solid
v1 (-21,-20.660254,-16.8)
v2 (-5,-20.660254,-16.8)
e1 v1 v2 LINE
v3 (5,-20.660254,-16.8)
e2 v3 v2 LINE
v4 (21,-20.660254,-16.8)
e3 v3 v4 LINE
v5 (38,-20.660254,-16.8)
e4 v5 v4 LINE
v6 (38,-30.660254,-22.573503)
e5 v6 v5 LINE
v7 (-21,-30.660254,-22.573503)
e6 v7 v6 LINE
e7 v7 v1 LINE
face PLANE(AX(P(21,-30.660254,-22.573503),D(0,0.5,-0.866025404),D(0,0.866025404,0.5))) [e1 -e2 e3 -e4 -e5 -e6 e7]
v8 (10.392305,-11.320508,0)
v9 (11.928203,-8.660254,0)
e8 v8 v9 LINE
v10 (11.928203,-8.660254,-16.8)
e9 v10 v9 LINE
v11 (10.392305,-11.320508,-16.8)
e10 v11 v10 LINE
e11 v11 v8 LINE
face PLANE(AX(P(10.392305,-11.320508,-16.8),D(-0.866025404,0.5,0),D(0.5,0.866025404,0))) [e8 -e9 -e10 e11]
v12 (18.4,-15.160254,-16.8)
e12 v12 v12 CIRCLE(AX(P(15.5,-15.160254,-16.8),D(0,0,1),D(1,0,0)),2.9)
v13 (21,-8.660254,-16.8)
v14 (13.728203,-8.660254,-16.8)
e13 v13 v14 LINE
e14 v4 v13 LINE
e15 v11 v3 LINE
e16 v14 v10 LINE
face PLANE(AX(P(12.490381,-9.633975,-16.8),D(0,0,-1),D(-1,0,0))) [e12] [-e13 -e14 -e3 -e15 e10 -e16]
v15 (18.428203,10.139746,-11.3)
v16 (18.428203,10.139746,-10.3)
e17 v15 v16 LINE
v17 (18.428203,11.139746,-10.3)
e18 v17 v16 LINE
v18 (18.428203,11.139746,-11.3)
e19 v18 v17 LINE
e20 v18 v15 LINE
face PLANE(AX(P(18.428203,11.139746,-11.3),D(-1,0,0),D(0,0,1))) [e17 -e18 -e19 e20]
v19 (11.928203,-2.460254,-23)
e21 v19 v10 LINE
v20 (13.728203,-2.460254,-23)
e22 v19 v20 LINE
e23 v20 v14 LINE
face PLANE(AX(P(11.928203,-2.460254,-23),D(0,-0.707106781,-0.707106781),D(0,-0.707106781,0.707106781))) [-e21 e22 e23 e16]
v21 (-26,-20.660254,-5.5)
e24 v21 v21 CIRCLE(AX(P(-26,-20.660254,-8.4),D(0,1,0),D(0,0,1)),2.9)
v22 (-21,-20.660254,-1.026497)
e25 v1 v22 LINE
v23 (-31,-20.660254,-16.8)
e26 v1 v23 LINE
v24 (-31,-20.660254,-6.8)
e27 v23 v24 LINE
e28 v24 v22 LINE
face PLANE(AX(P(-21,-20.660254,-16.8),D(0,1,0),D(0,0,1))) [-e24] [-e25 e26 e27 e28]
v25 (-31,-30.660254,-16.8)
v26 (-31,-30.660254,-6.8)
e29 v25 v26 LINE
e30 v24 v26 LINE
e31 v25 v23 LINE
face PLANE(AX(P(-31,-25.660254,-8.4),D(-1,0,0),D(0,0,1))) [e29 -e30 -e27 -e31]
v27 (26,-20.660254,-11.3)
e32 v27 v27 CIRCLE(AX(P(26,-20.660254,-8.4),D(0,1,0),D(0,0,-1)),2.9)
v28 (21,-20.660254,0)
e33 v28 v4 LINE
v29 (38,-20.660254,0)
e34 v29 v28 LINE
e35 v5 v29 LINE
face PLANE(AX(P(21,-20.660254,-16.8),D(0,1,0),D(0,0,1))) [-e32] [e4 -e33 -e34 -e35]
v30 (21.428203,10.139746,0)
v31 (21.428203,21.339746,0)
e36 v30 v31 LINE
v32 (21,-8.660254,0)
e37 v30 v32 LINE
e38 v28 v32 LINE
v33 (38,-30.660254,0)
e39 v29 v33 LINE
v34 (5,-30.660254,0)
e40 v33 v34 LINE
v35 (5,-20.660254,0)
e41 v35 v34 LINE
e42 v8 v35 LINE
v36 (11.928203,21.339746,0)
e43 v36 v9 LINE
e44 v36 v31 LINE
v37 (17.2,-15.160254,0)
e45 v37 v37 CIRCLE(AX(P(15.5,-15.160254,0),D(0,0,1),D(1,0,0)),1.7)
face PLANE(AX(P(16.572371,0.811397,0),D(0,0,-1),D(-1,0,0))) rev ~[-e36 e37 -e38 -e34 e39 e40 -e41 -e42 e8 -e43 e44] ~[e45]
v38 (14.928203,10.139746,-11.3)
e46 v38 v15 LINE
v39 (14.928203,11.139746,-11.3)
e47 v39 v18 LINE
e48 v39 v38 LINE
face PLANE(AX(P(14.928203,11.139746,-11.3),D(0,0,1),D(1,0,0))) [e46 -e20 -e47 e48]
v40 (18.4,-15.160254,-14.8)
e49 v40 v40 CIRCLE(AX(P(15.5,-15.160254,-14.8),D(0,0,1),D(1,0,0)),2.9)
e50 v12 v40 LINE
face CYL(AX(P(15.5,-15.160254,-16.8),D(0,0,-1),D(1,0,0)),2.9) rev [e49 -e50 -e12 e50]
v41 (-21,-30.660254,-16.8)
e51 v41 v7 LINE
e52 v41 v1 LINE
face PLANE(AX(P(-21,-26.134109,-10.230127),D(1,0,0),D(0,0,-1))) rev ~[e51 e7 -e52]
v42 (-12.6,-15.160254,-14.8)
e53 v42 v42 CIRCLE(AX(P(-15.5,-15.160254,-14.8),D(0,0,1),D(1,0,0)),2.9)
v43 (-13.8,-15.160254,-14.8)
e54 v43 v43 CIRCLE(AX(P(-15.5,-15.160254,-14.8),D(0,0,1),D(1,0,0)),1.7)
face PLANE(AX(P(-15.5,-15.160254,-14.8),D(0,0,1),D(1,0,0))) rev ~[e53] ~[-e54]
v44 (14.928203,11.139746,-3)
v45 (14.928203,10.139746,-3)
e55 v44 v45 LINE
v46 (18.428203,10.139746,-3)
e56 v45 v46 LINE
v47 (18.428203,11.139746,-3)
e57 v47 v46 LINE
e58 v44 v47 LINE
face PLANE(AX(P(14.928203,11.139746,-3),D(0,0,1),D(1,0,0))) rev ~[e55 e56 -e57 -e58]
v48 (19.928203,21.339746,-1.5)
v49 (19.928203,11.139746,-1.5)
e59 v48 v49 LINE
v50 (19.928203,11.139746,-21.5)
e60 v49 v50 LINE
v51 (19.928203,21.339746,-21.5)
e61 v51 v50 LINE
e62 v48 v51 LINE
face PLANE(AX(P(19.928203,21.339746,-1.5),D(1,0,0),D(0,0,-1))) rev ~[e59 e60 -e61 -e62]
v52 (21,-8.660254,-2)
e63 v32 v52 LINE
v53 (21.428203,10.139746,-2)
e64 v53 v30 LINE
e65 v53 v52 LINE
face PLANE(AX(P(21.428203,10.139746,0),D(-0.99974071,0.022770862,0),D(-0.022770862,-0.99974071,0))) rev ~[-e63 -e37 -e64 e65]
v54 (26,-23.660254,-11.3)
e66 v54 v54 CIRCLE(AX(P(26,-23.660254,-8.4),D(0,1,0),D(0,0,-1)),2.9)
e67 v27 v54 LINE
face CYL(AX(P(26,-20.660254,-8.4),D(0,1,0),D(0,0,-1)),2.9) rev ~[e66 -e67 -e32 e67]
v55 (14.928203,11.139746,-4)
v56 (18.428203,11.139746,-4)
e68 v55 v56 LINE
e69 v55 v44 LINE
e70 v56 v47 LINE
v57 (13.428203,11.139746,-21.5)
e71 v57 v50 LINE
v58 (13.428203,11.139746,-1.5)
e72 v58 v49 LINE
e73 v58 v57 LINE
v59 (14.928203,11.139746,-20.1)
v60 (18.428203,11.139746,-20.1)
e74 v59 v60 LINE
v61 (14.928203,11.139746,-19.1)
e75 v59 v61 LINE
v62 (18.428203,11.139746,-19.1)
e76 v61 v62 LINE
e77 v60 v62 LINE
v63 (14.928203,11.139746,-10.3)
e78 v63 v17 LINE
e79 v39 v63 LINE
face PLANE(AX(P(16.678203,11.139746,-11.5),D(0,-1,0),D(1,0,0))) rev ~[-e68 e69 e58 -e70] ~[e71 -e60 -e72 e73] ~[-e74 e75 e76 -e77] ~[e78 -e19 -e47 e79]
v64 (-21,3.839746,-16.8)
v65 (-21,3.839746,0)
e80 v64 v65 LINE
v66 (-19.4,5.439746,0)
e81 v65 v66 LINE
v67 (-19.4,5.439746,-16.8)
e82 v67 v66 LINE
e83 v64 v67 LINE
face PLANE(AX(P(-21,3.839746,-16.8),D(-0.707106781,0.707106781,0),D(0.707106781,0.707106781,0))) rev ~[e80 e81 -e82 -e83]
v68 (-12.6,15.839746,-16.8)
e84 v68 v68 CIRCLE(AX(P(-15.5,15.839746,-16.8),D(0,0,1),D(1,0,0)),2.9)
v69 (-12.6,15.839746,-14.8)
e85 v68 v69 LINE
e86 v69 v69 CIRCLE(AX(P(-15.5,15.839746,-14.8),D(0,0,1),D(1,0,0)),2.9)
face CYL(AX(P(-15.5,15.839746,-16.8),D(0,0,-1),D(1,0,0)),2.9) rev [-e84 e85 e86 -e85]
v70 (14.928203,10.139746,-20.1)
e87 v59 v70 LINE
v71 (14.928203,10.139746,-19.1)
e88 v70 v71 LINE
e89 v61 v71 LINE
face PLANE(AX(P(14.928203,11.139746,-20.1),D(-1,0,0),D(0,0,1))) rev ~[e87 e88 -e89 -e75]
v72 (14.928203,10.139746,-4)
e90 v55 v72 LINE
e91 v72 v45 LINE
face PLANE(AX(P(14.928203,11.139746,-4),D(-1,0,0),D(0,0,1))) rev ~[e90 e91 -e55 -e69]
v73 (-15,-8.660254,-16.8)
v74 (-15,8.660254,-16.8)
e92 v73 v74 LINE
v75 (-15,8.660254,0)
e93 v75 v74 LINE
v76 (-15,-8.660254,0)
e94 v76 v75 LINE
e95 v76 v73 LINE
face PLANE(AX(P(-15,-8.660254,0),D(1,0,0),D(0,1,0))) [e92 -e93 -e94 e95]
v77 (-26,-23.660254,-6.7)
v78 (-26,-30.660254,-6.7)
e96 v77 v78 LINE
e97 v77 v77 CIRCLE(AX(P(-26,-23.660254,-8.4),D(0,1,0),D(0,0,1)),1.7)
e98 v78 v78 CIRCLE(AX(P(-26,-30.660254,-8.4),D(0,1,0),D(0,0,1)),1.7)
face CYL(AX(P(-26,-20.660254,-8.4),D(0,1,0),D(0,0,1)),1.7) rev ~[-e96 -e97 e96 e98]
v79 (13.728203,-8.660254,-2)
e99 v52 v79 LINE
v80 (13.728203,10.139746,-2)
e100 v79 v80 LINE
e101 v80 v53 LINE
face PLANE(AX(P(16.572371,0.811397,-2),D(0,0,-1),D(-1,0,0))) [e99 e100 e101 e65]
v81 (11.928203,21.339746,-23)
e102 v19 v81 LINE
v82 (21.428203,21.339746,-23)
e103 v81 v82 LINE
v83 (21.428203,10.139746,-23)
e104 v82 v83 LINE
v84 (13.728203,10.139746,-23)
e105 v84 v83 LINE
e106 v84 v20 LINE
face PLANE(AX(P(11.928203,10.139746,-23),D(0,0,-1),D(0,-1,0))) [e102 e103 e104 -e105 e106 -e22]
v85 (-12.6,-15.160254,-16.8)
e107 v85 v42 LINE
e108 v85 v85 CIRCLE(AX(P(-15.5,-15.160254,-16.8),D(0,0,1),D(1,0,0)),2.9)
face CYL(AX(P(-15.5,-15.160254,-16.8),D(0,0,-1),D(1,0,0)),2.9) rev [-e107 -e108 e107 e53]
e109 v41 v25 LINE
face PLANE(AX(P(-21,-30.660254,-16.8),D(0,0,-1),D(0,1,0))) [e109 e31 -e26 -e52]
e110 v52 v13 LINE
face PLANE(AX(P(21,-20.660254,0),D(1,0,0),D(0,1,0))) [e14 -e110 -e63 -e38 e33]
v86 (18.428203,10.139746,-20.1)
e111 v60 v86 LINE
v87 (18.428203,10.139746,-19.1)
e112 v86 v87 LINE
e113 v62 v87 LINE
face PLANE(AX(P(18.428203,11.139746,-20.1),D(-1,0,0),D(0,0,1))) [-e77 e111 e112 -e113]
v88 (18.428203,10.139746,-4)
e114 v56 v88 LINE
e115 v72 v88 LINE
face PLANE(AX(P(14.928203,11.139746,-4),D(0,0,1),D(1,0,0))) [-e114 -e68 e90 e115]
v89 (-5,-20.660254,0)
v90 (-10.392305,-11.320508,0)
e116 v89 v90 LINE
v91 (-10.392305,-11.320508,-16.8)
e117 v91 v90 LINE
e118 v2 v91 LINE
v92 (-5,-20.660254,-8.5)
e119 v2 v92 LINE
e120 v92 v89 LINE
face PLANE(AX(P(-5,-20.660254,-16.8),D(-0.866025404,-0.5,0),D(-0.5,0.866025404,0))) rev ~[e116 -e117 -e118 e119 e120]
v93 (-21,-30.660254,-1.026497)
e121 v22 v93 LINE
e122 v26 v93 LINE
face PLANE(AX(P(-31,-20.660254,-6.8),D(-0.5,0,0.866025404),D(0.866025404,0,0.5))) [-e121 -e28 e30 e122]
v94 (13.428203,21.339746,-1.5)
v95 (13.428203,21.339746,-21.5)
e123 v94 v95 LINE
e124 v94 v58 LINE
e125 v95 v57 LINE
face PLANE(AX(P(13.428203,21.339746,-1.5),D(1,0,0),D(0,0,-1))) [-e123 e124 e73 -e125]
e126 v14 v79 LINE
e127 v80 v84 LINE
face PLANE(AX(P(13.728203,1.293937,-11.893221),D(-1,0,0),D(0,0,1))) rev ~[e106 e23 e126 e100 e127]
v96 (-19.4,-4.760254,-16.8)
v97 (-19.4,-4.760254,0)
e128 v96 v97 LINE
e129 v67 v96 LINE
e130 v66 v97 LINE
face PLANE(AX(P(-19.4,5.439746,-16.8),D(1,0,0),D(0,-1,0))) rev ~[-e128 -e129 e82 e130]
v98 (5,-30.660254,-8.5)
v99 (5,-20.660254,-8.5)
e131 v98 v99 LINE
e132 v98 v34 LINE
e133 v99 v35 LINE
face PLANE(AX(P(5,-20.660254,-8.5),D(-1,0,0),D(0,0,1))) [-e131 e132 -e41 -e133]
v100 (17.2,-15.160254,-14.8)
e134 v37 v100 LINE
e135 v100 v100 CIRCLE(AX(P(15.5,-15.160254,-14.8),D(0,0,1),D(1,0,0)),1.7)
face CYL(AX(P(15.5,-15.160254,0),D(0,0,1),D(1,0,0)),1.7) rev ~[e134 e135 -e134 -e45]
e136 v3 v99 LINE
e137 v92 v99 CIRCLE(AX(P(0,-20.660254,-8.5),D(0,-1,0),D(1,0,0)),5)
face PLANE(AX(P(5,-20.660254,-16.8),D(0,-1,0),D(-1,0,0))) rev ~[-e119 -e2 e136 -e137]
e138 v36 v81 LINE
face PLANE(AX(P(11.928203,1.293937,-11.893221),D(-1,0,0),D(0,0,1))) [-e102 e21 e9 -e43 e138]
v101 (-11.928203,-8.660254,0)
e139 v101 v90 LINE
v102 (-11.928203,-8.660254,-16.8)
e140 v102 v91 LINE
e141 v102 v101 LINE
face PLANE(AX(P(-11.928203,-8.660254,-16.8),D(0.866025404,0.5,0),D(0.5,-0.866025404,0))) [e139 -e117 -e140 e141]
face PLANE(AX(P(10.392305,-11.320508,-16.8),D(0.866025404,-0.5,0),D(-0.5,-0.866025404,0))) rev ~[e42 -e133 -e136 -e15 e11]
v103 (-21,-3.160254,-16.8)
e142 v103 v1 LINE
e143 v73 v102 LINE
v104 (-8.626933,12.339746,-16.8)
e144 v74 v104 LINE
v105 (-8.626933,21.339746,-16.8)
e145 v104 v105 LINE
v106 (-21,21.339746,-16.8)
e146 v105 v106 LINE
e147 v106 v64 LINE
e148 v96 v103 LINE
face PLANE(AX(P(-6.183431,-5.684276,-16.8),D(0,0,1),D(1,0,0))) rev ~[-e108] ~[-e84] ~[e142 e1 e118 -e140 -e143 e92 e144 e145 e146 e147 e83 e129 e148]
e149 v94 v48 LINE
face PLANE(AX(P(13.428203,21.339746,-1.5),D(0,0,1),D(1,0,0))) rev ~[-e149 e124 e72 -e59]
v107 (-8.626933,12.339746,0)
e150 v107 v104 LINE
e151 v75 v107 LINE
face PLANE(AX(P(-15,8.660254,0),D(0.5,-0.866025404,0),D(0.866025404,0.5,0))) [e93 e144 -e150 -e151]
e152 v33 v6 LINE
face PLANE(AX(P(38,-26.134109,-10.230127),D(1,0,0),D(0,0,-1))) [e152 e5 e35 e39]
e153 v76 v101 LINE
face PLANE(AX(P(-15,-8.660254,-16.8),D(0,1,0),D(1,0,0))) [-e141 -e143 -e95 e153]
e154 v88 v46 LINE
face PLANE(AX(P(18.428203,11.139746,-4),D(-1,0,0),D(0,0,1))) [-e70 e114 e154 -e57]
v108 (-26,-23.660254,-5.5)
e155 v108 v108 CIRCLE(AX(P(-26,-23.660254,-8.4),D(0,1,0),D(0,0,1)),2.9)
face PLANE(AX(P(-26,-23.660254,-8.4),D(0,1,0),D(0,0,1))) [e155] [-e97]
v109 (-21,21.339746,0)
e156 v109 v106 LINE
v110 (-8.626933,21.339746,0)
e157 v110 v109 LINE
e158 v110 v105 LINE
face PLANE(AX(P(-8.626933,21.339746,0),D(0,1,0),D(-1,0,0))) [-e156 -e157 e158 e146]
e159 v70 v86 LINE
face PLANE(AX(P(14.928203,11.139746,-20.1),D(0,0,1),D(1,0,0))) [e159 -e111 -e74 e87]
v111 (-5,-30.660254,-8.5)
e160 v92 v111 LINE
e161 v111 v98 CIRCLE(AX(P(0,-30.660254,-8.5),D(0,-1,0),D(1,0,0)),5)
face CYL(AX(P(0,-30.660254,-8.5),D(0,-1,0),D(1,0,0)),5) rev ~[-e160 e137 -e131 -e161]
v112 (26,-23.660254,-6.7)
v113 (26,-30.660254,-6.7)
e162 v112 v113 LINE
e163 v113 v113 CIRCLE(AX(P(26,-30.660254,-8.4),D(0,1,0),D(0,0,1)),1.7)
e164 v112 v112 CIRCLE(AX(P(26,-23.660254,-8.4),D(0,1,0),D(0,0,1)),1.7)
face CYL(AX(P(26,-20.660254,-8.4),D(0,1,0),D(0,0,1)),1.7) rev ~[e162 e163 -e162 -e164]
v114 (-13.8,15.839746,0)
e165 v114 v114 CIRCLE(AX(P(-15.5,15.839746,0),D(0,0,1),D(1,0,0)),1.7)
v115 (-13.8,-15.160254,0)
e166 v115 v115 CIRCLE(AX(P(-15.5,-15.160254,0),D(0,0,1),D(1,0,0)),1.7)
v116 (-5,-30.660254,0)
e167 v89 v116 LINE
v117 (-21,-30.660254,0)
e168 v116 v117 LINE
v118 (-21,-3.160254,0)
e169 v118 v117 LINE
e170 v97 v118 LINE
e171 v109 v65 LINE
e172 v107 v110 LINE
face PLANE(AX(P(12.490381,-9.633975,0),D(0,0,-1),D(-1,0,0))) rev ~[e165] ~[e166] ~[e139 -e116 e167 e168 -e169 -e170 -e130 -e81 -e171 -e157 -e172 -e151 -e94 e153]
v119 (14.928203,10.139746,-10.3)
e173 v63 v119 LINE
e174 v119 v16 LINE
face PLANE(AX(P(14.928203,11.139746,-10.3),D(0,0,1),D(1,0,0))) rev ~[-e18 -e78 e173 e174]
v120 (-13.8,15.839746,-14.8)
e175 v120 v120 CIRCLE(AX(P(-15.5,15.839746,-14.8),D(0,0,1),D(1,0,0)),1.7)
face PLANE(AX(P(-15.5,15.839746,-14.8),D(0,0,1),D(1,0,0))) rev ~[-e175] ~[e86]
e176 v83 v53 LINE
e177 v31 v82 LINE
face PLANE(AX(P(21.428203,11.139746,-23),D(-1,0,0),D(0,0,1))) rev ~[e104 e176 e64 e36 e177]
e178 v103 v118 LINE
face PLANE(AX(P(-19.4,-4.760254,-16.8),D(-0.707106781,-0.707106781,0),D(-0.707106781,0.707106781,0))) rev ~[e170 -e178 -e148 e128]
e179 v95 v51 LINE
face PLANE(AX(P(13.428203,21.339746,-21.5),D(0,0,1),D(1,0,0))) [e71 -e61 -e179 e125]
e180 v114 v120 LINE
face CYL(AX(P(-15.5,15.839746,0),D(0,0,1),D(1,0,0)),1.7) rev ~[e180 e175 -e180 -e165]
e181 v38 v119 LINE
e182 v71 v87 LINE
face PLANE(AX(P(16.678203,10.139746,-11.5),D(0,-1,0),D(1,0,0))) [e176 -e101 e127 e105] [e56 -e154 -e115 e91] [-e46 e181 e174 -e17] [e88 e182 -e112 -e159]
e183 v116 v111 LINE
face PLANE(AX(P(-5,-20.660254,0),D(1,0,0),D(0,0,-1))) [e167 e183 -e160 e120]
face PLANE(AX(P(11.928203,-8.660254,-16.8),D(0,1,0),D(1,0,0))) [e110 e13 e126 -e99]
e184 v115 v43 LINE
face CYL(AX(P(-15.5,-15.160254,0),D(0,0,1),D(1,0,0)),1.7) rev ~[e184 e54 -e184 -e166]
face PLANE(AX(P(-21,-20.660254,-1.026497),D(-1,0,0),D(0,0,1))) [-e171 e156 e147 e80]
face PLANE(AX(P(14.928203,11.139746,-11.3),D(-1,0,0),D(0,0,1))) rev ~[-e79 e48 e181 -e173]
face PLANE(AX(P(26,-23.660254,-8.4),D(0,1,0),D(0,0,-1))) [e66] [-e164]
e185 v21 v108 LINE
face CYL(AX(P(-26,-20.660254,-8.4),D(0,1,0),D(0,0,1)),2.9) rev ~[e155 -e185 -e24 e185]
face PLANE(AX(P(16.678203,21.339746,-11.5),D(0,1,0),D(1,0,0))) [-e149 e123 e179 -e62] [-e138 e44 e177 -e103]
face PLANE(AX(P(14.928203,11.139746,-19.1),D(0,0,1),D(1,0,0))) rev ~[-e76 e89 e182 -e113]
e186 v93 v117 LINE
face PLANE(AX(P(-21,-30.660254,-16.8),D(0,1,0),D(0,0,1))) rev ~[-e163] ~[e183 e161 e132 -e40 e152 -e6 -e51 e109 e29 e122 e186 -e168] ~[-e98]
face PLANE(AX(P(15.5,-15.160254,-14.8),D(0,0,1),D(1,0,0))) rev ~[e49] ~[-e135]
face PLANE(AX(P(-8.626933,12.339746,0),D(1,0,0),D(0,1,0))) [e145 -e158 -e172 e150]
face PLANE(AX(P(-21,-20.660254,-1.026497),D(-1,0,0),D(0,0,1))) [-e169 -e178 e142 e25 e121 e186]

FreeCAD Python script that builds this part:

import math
import FreeCAD as App
import Part
import Sketcher
Q = App.Units.Quantity


def add_polygon(sketch, points):
    """Adds a closed chain of lines whose ends are joined by coincident constraints."""
    first, n = sketch.GeometryCount, len(points)
    for a, b in zip(points, points[1:] + points[:1]):
        sketch.addGeometry(Part.LineSegment(App.Vector(*a, 0), App.Vector(*b, 0)), False)
    for i in range(n):
        sketch.addConstraint(Sketcher.Constraint("Coincident", first + i, 2, first + (i + 1) % n, 1))

doc = App.newDocument("Part")
body = doc.addObject("PartDesign::Body", "Body")

sketch1 = doc.addObject("Sketcher::SketchObject", "Sketch")
body.addObject(sketch1)
sketch1.AttachmentSupport = (doc.XY_Plane, [""])
sketch1.MapMode = "FlatFace"
add_polygon(sketch1, [(-21, 21.3), (-21, -20.7), (21, -20.7), (21, -8.7), (15, -8.7), (0, -17.3), (-15, -8.7), (-15, 8.7), (-8.6, 12.3), (-8.6, 21.3)])
sketch1.addGeometry(Part.Circle(App.Vector(-15.5, -15.2, 0), App.Vector(0, 0, 1), 1.7), False)
sketch1.addGeometry(Part.Circle(App.Vector(15.5, -15.2, 0), App.Vector(0, 0, 1), 1.7), False)
sketch1.addGeometry(Part.Circle(App.Vector(-15.5, 15.8, 0), App.Vector(0, 0, 1), 1.7), False)
sketch1.addConstraint([
    Sketcher.Constraint("Vertical", 0),
    Sketcher.Constraint("Horizontal", 1),
    Sketcher.Constraint("Vertical", 2),
    Sketcher.Constraint("Horizontal", 3),
    Sketcher.Constraint("Vertical", 6),
    Sketcher.Constraint("Vertical", 8),
    Sketcher.Constraint("Horizontal", 9),
    Sketcher.Constraint("Equal", 10, 11),
    Sketcher.Constraint("Equal", 11, 12),
    Sketcher.Constraint("Symmetric", 3, 2, 6, 2, -1, 1),
    Sketcher.Constraint("Symmetric", 10, 3, 11, 3, -2),
    Sketcher.Constraint("PointOnObject", 4, 2, -2),
    Sketcher.Constraint("Parallel", 4, 7),
    Sketcher.Constraint("Horizontal", 3, 2, 5, 2),
    Sketcher.Constraint("Vertical", 10, 3, 12, 3),
    Sketcher.Constraint("Equal", 1, 0),
    Sketcher.Constraint("Diameter", 10, Q("3.4 mm")),
    Sketcher.Constraint("DistanceX", 1, 1, 1, 2, Q("42 mm")),
    Sketcher.Constraint("DistanceX", 3, 2, 3, 1, Q("6 mm")),
    Sketcher.Constraint("DistanceY", 2, 1, 2, 2, Q("12 mm")),
    Sketcher.Constraint("DistanceY", 8, 1, 8, 2, Q("9 mm")),
    Sketcher.Constraint("Angle", 4, Q("-150 deg")),
    Sketcher.Constraint("DistanceX", 0, 2, -1, 1, Q("21 mm")),
    Sketcher.Constraint("DistanceX", 10, 3, 11, 3, Q("31 mm")),
    Sketcher.Constraint("DistanceY", 10, 3, 12, 3, Q("31 mm")),
    Sketcher.Constraint("DistanceY", 0, 2, 10, 3, Q("5.5 mm")),
    Sketcher.Constraint("DistanceY", 6, 1, 6, 2, Q("17.320508 mm")),
])
pad1 = doc.addObject("PartDesign::Pad", "Pad")
body.addObject(pad1)
pad1.Profile = sketch1
pad1.Length = 16.8
pad1.Reversed = True
body2 = doc.addObject("PartDesign::Body", "Body001")

sketch2 = doc.addObject("Sketcher::SketchObject", "Sketch001")
body2.addObject(sketch2)
sketch2.AttachmentSupport = (doc.getObject("YZ_Plane001"), [""])
sketch2.MapMode = "FlatFace"
sketch2.AttachmentOffset = App.Placement(App.Vector(0, 0, 21), App.Rotation())
add_polygon(sketch2, [(-21, 0), (-31, 0), (-31, -23), (-21, -17)])
sketch2.addConstraint([
    Sketcher.Constraint("Horizontal", 0),
    Sketcher.Constraint("Vertical", 1),
    Sketcher.Constraint("Vertical", 3),
    Sketcher.Constraint("PointOnObject", 0, 2, -1),
    Sketcher.Constraint("DistanceX", 0, 2, 0, 1, Q("10 mm")),
    Sketcher.Constraint("Angle", 2, Q("30 deg")),
    Sketcher.Constraint("DistanceY", 3, 1, 3, 2, Q("16.8 mm")),
    Sketcher.Constraint("DistanceX", 0, 2, -1, 1, Q("30.660254 mm")),
])
pad2 = doc.addObject("PartDesign::Pad", "Pad001")
body2.addObject(pad2)
pad2.Profile = sketch2
pad2.Type = "TwoLengths"
pad2.Length = 17
pad2.Length2 = 42
doc.recompute()

boolean = doc.addObject("PartDesign::Boolean", "Boolean")
body.addObject(boolean)
boolean.Type = "Fuse"
boolean.addObjects([body2])

sketch3 = doc.addObject("Sketcher::SketchObject", "Sketch002")
body.addObject(sketch3)
sketch3.AttachmentSupport = (doc.YZ_Plane, [""])
sketch3.MapMode = "FlatFace"
sketch3.AttachmentOffset = App.Placement(App.Vector(0, 0, -21), App.Rotation())
add_polygon(sketch3, [(-21, -17), (-31, -17), (-31, 0), (-21, 0)])
sketch3.addConstraint([
    Sketcher.Constraint("Horizontal", 0),
    Sketcher.Constraint("Vertical", 1),
    Sketcher.Constraint("Horizontal", 2),
    Sketcher.Constraint("Vertical", 3),
    Sketcher.Constraint("PointOnObject", 1, 2, -1),
    Sketcher.Constraint("DistanceX", 0, 2, 0, 1, Q("10 mm")),
    Sketcher.Constraint("DistanceY", 1, 1, 1, 2, Q("16.8 mm")),
    Sketcher.Constraint("DistanceX", 0, 2, -1, 1, Q("30.660254 mm")),
])
pad3 = doc.addObject("PartDesign::Pad", "Pad002")
body.addObject(pad3)
pad3.Profile = sketch3
pad3.Length = 10
pad3.Reversed = True

sketch4 = doc.addObject("Sketcher::SketchObject", "Sketch003")
body.addObject(sketch4)
sketch4.AttachmentSupport = (doc.XZ_Plane, [""])
sketch4.MapMode = "FlatFace"
sketch4.AttachmentOffset = App.Placement(App.Vector(0, 0, 20.660254), App.Rotation())
sketch4.addGeometry([
    Part.Circle(App.Vector(-26, -8.4, 0), App.Vector(0, 0, 1), 1.7),
    Part.Circle(App.Vector(26, -8.4, 0), App.Vector(0, 0, 1), 1.7),
], False)
sketch4.addConstraint([
    Sketcher.Constraint("Equal", 0, 1),
    Sketcher.Constraint("Symmetric", 0, 3, 1, 3, -2),
    Sketcher.Constraint("Diameter", 0, Q("3.4 mm")),
    Sketcher.Constraint("DistanceX", 0, 3, -1, 1, Q("26 mm")),
    Sketcher.Constraint("DistanceY", 0, 3, -1, 1, Q("8.4 mm")),
])
pocket1 = doc.addObject("PartDesign::Pocket", "Pocket")
body.addObject(pocket1)
pocket1.Profile = sketch4
pocket1.Type = "ThroughAll"
pocket1.Reversed = True

sketch5 = doc.addObject("Sketcher::SketchObject", "Sketch004")
body.addObject(sketch5)
sketch5.AttachmentSupport = (doc.XZ_Plane, [""])
sketch5.MapMode = "FlatFace"
sketch5.AttachmentOffset = App.Placement(App.Vector(0, 0, 20.660254), App.Rotation())
sketch5.addGeometry([
    Part.Circle(App.Vector(-26, -8.4, 0), App.Vector(0, 0, 1), 2.9),
    Part.Circle(App.Vector(-26, -8.4, 0), App.Vector(0, 0, 1), 1.7),
    Part.Circle(App.Vector(26, -8.4, 0), App.Vector(0, 0, 1), 2.9),
    Part.Circle(App.Vector(26, -8.4, 0), App.Vector(0, 0, 1), 1.7),
], False)
sketch5.addConstraint([
    Sketcher.Constraint("Coincident", 1, 3, 0, 3),
    Sketcher.Constraint("Coincident", 3, 3, 2, 3),
    Sketcher.Constraint("Equal", 0, 2),
    Sketcher.Constraint("Equal", 1, 3),
    Sketcher.Constraint("Symmetric", 0, 3, 2, 3, -2),
    Sketcher.Constraint("Diameter", 0, Q("5.8 mm")),
    Sketcher.Constraint("Diameter", 1, Q("3.4 mm")),
    Sketcher.Constraint("DistanceX", 0, 3, -1, 1, Q("26 mm")),
    Sketcher.Constraint("DistanceY", 0, 3, -1, 1, Q("8.4 mm")),
])
pocket2 = doc.addObject("PartDesign::Pocket", "Pocket001")
body.addObject(pocket2)
pocket2.Profile = sketch5
pocket2.Length = 3
pocket2.Reversed = True

sketch6 = doc.addObject("Sketcher::SketchObject", "Sketch005")
body.addObject(sketch6)
sketch6.AttachmentSupport = (doc.XY_Plane, [""])
sketch6.MapMode = "FlatFace"
sketch6.AttachmentOffset = App.Placement(App.Vector(0, 0, -16.8), App.Rotation())
sketch6.addGeometry([
    Part.Circle(App.Vector(-15.5, 15.8, 0), App.Vector(0, 0, 1), 2.9),
    Part.Circle(App.Vector(-15.5, -15.2, 0), App.Vector(0, 0, 1), 2.9),
    Part.Circle(App.Vector(15.5, -15.2, 0), App.Vector(0, 0, 1), 2.9),
], False)
sketch6.addConstraint([
    Sketcher.Constraint("Equal", 0, 1),
    Sketcher.Constraint("Equal", 1, 2),
    Sketcher.Constraint("Symmetric", 1, 3, 2, 3, -2),
    Sketcher.Constraint("Vertical", 0, 3, 1, 3),
    Sketcher.Constraint("Diameter", 0, Q("5.8 mm")),
    Sketcher.Constraint("DistanceY", 1, 3, 0, 3, Q("31 mm")),
    Sketcher.Constraint("DistanceX", 1, 3, 2, 3, Q("31 mm")),
    Sketcher.Constraint("DistanceY", -1, 1, 0, 3, Q("15.839746 mm")),
])
pocket3 = doc.addObject("PartDesign::Pocket", "Pocket002")
body.addObject(pocket3)
pocket3.Profile = sketch6
pocket3.Length = 2
pocket3.Reversed = True

sketch7 = doc.addObject("Sketcher::SketchObject", "Sketch006")
body.addObject(sketch7)
sketch7.AttachmentSupport = (doc.XZ_Plane, [""])
sketch7.MapMode = "FlatFace"
sketch7.AttachmentOffset = App.Placement(App.Vector(0, 0, 20.660254), App.Rotation())
add_polygon(sketch7, [(-31, -6.8), (-31, 0), (-21, 0), (-21, -1)])
sketch7.addConstraint([
    Sketcher.Constraint("Vertical", 0),
    Sketcher.Constraint("Horizontal", 1),
    Sketcher.Constraint("Vertical", 2),
    Sketcher.Constraint("PointOnObject", 0, 2, -1),
    Sketcher.Constraint("DistanceX", 1, 1, 1, 2, Q("10 mm")),
    Sketcher.Constraint("Angle", 3, Q("-150 deg")),
    Sketcher.Constraint("DistanceY", 0, 1, 0, 2, Q("6.8 mm")),
    Sketcher.Constraint("DistanceX", 0, 2, -1, 1, Q("31 mm")),
])
pocket4 = doc.addObject("PartDesign::Pocket", "Pocket003")
body.addObject(pocket4)
pocket4.Profile = sketch7
pocket4.Type = "ThroughAll"
pocket4.Reversed = True

sketch8 = doc.addObject("Sketcher::SketchObject", "Sketch007")
body.addObject(sketch8)
sketch8.AttachmentSupport = (doc.XZ_Plane, [""])
sketch8.MapMode = "FlatFace"
sketch8.AttachmentOffset = App.Placement(App.Vector(0, 0, 30.660254), App.Rotation())
sketch8.addGeometry(Part.Circle(App.Vector(0, -8, 0), App.Vector(0, 0, 1), 5), False)
sketch8.addConstraint([
    Sketcher.Constraint("PointOnObject", 0, 3, -2),
    Sketcher.Constraint("Diameter", 0, Q("10 mm")),
    Sketcher.Constraint("DistanceY", 0, 3, -1, 1, Q("8.5 mm")),
])
pocket5 = doc.addObject("PartDesign::Pocket", "Pocket004")
body.addObject(pocket5)
pocket5.Profile = sketch8
pocket5.Type = "ThroughAll"

sketch9 = doc.addObject("Sketcher::SketchObject", "Sketch008")
body.addObject(sketch9)
sketch9.AttachmentSupport = (doc.XY_Plane, [""])
sketch9.MapMode = "FlatFace"
sketch9.AttachmentOffset = App.Placement(App.Vector(0, 0, -16.8), App.Rotation())
add_polygon(sketch9, [(5, -21), (-5, -21), (-10, -11), (0, -17), (10, -11)])
sketch9.addConstraint([
    Sketcher.Constraint("Horizontal", 0),
    Sketcher.Constraint("Symmetric", 1, 2, 3, 2, -2),
    Sketcher.Constraint("PointOnObject", 2, 2, -2),
    Sketcher.Constraint("Perpendicular", 1, 3),
    Sketcher.Constraint("Perpendicular", 2, 4),
    Sketcher.Constraint("DistanceX", 0, 2, 0, 1, Q("10 mm")),
    Sketcher.Constraint("Angle", 1, Q("120 deg")),
    Sketcher.Constraint("Distance", 2, Q("12 mm")),
    Sketcher.Constraint("DistanceY", 1, 2, -1, 1, Q("11.320508 mm")),
])
pocket6 = doc.addObject("PartDesign::Pocket", "Pocket005")
body.addObject(pocket6)
pocket6.Profile = sketch9
pocket6.Type = "ThroughAll"
pocket6.Reversed = True

sketch10 = doc.addObject("Sketcher::SketchObject", "Sketch009")
body.addObject(sketch10)
sketch10.AttachmentSupport = (doc.XY_Plane, [""])
sketch10.MapMode = "FlatFace"
sketch10.AttachmentOffset = App.Placement(App.Vector(0, 0, -16.8), App.Rotation())
add_polygon(sketch10, [(15, -8.7), (10.4, -11.3), (11.9, -8.7)])
add_polygon(sketch10, [(-11.9, -8.7), (-10.4, -11.3), (-15, -8.7)])
sketch10.addConstraint([
    Sketcher.Constraint("Horizontal", 2),
    Sketcher.Constraint("Horizontal", 5),
    Sketcher.Constraint("Symmetric", 0, 2, 3, 2, -2),
    Sketcher.Constraint("Symmetric", 2, 2, 4, 2, -2),
    Sketcher.Constraint("Perpendicular", 0, 3),
    Sketcher.Constraint("Perpendicular", 1, 4),
    Sketcher.Constraint("Angle", 0, Q("-150 deg")),
    Sketcher.Constraint("DistanceX", -1, 1, 2, 2, Q("15 mm")),
    Sketcher.Constraint("DistanceX", 0, 2, 1, 2, Q("1.535898 mm")),
    Sketcher.Constraint("DistanceY", 0, 2, -1, 1, Q("11.320508 mm")),
])
pad4 = doc.addObject("PartDesign::Pad", "Pad003")
body.addObject(pad4)
pad4.Profile = sketch10
pad4.Length = 16.8

sketch11 = doc.addObject("Sketcher::SketchObject", "Sketch010")
body.addObject(sketch11)
sketch11.AttachmentSupport = (doc.XZ_Plane, [""])
sketch11.MapMode = "FlatFace"
sketch11.AttachmentOffset = App.Placement(App.Vector(0, 0, 20.660254), App.Rotation())
sketch11.addGeometry([
    Part.LineSegment(App.Vector(-5, 0, 0), App.Vector(5, 0, 0)),
    Part.LineSegment(App.Vector(5, 0, 0), App.Vector(5, -8, 0)),
    Part.ArcOfCircle(Part.Circle(App.Vector(0, -8, 0), App.Vector(0, 0, 1), 5), math.radians(0), math.radians(180)),
    Part.LineSegment(App.Vector(-5, -8, 0), App.Vector(-5, 0, 0)),
], False)
sketch11.addConstraint([
    Sketcher.Constraint("Coincident", 0, 2, 1, 1),
    Sketcher.Constraint("Tangent", 1, 2, 2, 1),
    Sketcher.Constraint("Tangent", 2, 2, 3, 1),
    Sketcher.Constraint("Coincident", 3, 2, 0, 1),
    Sketcher.Constraint("Horizontal", 0),
    Sketcher.Constraint("Vertical", 1),
    Sketcher.Constraint("Vertical", 3),
    Sketcher.Constraint("Symmetric", 0, 2, 3, 2, -1, 1),
    Sketcher.Constraint("Radius", 2, Q("5 mm")),
    Sketcher.Constraint("DistanceY", 1, 2, 1, 1, Q("8.5 mm")),
])
pocket7 = doc.addObject("PartDesign::Pocket", "Pocket006")
body.addObject(pocket7)
pocket7.Profile = sketch11
pocket7.Type = "ThroughAll"
pocket7.Reversed = True
body3 = doc.addObject("PartDesign::Body", "Body002")

sketch12 = doc.addObject("Sketcher::SketchObject", "Sketch011")
body3.addObject(sketch12)
sketch12.AttachmentSupport = (doc.getObject("XZ_Plane002"), [""])
sketch12.MapMode = "FlatFace"
sketch12.AttachmentOffset = App.Placement(App.Vector(0, 0, -21.339746), App.Rotation())
add_polygon(sketch12, [(12, -23), (12, 0), (21, 0), (21, -23)])
add_polygon(sketch12, [(20, -2), (13, -2), (13, -22), (20, -22)])
sketch12.addConstraint([
    Sketcher.Constraint("Vertical", 0),
    Sketcher.Constraint("Horizontal", 1),
    Sketcher.Constraint("Vertical", 2),
    Sketcher.Constraint("Horizontal", 3),
    Sketcher.Constraint("Horizontal", 4),
    Sketcher.Constraint("Vertical", 5),
    Sketcher.Constraint("Horizontal", 6),
    Sketcher.Constraint("Vertical", 7),
    Sketcher.Constraint("PointOnObject", 0, 2, -1),
    Sketcher.Constraint("DistanceY", 0, 1, 0, 2, Q("23 mm")),
    Sketcher.Constraint("DistanceY", 5, 2, 5, 1, Q("20 mm")),
    Sketcher.Constraint("DistanceX", 1, 1, 1, 2, Q("9.5 mm")),
    Sketcher.Constraint("DistanceX", 4, 2, 4, 1, Q("6.5 mm")),
    Sketcher.Constraint("DistanceX", 4, 2, 1, 2, Q("8 mm")),
    Sketcher.Constraint("DistanceY", 4, 2, -1, 1, Q("1.5 mm")),
    Sketcher.Constraint("DistanceX", -1, 1, 0, 2, Q("11.928203 mm")),
])
pad5 = doc.addObject("PartDesign::Pad", "Pad004")
body3.addObject(pad5)
pad5.Profile = sketch12
pad5.Length = 10.2

sketch13 = doc.addObject("Sketcher::SketchObject", "Sketch012")
body3.addObject(sketch13)
sketch13.AttachmentSupport = (doc.getObject("XZ_Plane002"), [""])
sketch13.MapMode = "FlatFace"
sketch13.AttachmentOffset = App.Placement(App.Vector(0, 0, -11.139746), App.Rotation())
add_polygon(sketch13, [(11.9, 0), (11.9, -23), (21.4, -23), (21.4, 0)])
add_polygon(sketch13, [(18.4, -20.1), (14.9, -20.1), (14.9, -19.1), (18.4, -19.1)])
add_polygon(sketch13, [(18.4, -11.3), (14.9, -11.3), (14.9, -10.3), (18.4, -10.3)])
add_polygon(sketch13, [(18.4, -4), (14.9, -4), (14.9, -3), (18.4, -3)])
sketch13.addConstraint([
    Sketcher.Constraint("Vertical", 0),
    Sketcher.Constraint("Horizontal", 1),
    Sketcher.Constraint("Vertical", 2),
    Sketcher.Constraint("Horizontal", 3),
    Sketcher.Constraint("Horizontal", 4),
    Sketcher.Constraint("Vertical", 5),
    Sketcher.Constraint("Horizontal", 6),
    Sketcher.Constraint("Vertical", 7),
    Sketcher.Constraint("Horizontal", 8),
    Sketcher.Constraint("Vertical", 9),
    Sketcher.Constraint("Horizontal", 10),
    Sketcher.Constraint("Vertical", 11),
    Sketcher.Constraint("Horizontal", 12),
    Sketcher.Constraint("Vertical", 13),
    Sketcher.Constraint("Horizontal", 14),
    Sketcher.Constraint("Vertical", 15),
    Sketcher.Constraint("PointOnObject", 2, 2, -1),
    Sketcher.Constraint("Vertical", 5, 2, 8, 2),
    Sketcher.Constraint("Vertical", 7, 2, 10, 2),
    Sketcher.Constraint("Vertical", 9, 2, 12, 2),
    Sketcher.Constraint("Vertical", 11, 2, 14, 2),
    Sketcher.Constraint("Equal", 7, 9),
    Sketcher.Constraint("Equal", 11, 13),
    Sketcher.Constraint("DistanceY", 0, 2, 0, 1, Q("23 mm")),
    Sketcher.Constraint("DistanceY", 5, 1, 5, 2, Q("1 mm")),
    Sketcher.Constraint("DistanceX", 1, 1, 1, 2, Q("9.5 mm")),
    Sketcher.Constraint("DistanceX", 4, 2, 4, 1, Q("3.5 mm")),
    Sketcher.Constraint("DistanceY", 12, 2, -1, 1, Q("4 mm")),
    Sketcher.Constraint("DistanceX", 0, 2, 4, 2, Q("3 mm")),
    Sketcher.Constraint("DistanceY", 4, 2, -1, 1, Q("20.1 mm")),
    Sketcher.Constraint("DistanceY", 8, 2, -1, 1, Q("11.3 mm")),
    Sketcher.Constraint("DistanceX", -1, 1, 0, 2, Q("11.928203 mm")),
])
pad6 = doc.addObject("PartDesign::Pad", "Pad005")
body3.addObject(pad6)
pad6.Profile = sketch13
pad6.Length = 1
body.AllowCompound = True
doc.recompute()

boolean2 = doc.addObject("PartDesign::Boolean", "Boolean001")
body.addObject(boolean2)
boolean2.Type = "Fuse"
boolean2.addObjects([body3])

sketch14 = doc.addObject("Sketcher::SketchObject", "Sketch013")
body.addObject(sketch14)
sketch14.AttachmentSupport = (doc.XY_Plane, [""])
sketch14.MapMode = "FlatFace"
add_polygon(sketch14, [(21, -9), (21, 10), (12, 10), (12, -9)])
sketch14.addConstraint([
    Sketcher.Constraint("Horizontal", 1),
    Sketcher.Constraint("Vertical", 2),
    Sketcher.Constraint("Horizontal", 3),
    Sketcher.Constraint("DistanceX", 1, 2, 1, 1, Q("9.5 mm")),
    Sketcher.Constraint("DistanceY", 2, 2, 2, 1, Q("18.8 mm")),
    Sketcher.Constraint("DistanceX", -1, 1, 3, 2, Q("21 mm")),
    Sketcher.Constraint("DistanceX", 3, 1, 3, 2, Q("9.071797 mm")),
    Sketcher.Constraint("DistanceY", -1, 1, 0, 2, Q("10.139746 mm")),
])
pad7 = doc.addObject("PartDesign::Pad", "Pad006")
body.addObject(pad7)
pad7.Profile = sketch14
pad7.Length = 2
pad7.Reversed = True

sketch15 = doc.addObject("Sketcher::SketchObject", "Sketch014")
body.addObject(sketch15)
sketch15.AttachmentSupport = (doc.YZ_Plane, [""])
sketch15.MapMode = "FlatFace"
sketch15.AttachmentOffset = App.Placement(App.Vector(0, 0, 11.928203), App.Rotation())
add_polygon(sketch15, [(10, -2), (10, -23), (-2, -23), (-9, -17), (-9, -2)])
sketch15.addConstraint([
    Sketcher.Constraint("Vertical", 0),
    Sketcher.Constraint("Horizontal", 1),
    Sketcher.Constraint("Vertical", 3),
    Sketcher.Constraint("Horizontal", 4),
    Sketcher.Constraint("DistanceY", 0, 2, 0, 1, Q("21 mm")),
    Sketcher.Constraint("Angle", 2, Q("135 deg")),
    Sketcher.Constraint("DistanceX", 1, 2, 1, 1, Q("12.6 mm")),
    Sketcher.Constraint("DistanceX", 4, 1, 4, 2, Q("18.8 mm")),
    Sketcher.Constraint("DistanceY", 0, 2, -1, 1, Q("23 mm")),
    Sketcher.Constraint("DistanceX", -1, 1, 0, 2, Q("10.139746 mm")),
])
pad8 = doc.addObject("PartDesign::Pad", "Pad007")
body.addObject(pad8)
pad8.Profile = sketch15
pad8.Length = 1.8

sketch16 = doc.addObject("Sketcher::SketchObject", "Sketch015")
body.addObject(sketch16)
sketch16.AttachmentSupport = (doc.XY_Plane, [""])
sketch16.MapMode = "FlatFace"
sketch16.AttachmentOffset = App.Placement(App.Vector(0, 0, -16.8), App.Rotation())
add_polygon(sketch16, [(-21, 3.8), (-19.4, 5.4), (-19.4, -4.8), (-21, -3.2)])
sketch16.addConstraint([
    Sketcher.Constraint("Vertical", 1),
    Sketcher.Constraint("Vertical", 3),
    Sketcher.Constraint("Perpendicular", 0, 2),
    Sketcher.Constraint("Equal", 0, 2),
    Sketcher.Constraint("DistanceY", 3, 1, 3, 2, Q("7 mm")),
    Sketcher.Constraint("DistanceY", 1, 2, 1, 1, Q("10.2 mm")),
    Sketcher.Constraint("DistanceX", 2, 2, -1, 1, Q("21 mm")),
    Sketcher.Constraint("DistanceY", -1, 1, 0, 2, Q("5.439746 mm")),
])
pocket8 = doc.addObject("PartDesign::Pocket", "Pocket007")
body.addObject(pocket8)
pocket8.Profile = sketch16
pocket8.Type = "ThroughAll"
pocket8.Reversed = True

doc.recompute()
